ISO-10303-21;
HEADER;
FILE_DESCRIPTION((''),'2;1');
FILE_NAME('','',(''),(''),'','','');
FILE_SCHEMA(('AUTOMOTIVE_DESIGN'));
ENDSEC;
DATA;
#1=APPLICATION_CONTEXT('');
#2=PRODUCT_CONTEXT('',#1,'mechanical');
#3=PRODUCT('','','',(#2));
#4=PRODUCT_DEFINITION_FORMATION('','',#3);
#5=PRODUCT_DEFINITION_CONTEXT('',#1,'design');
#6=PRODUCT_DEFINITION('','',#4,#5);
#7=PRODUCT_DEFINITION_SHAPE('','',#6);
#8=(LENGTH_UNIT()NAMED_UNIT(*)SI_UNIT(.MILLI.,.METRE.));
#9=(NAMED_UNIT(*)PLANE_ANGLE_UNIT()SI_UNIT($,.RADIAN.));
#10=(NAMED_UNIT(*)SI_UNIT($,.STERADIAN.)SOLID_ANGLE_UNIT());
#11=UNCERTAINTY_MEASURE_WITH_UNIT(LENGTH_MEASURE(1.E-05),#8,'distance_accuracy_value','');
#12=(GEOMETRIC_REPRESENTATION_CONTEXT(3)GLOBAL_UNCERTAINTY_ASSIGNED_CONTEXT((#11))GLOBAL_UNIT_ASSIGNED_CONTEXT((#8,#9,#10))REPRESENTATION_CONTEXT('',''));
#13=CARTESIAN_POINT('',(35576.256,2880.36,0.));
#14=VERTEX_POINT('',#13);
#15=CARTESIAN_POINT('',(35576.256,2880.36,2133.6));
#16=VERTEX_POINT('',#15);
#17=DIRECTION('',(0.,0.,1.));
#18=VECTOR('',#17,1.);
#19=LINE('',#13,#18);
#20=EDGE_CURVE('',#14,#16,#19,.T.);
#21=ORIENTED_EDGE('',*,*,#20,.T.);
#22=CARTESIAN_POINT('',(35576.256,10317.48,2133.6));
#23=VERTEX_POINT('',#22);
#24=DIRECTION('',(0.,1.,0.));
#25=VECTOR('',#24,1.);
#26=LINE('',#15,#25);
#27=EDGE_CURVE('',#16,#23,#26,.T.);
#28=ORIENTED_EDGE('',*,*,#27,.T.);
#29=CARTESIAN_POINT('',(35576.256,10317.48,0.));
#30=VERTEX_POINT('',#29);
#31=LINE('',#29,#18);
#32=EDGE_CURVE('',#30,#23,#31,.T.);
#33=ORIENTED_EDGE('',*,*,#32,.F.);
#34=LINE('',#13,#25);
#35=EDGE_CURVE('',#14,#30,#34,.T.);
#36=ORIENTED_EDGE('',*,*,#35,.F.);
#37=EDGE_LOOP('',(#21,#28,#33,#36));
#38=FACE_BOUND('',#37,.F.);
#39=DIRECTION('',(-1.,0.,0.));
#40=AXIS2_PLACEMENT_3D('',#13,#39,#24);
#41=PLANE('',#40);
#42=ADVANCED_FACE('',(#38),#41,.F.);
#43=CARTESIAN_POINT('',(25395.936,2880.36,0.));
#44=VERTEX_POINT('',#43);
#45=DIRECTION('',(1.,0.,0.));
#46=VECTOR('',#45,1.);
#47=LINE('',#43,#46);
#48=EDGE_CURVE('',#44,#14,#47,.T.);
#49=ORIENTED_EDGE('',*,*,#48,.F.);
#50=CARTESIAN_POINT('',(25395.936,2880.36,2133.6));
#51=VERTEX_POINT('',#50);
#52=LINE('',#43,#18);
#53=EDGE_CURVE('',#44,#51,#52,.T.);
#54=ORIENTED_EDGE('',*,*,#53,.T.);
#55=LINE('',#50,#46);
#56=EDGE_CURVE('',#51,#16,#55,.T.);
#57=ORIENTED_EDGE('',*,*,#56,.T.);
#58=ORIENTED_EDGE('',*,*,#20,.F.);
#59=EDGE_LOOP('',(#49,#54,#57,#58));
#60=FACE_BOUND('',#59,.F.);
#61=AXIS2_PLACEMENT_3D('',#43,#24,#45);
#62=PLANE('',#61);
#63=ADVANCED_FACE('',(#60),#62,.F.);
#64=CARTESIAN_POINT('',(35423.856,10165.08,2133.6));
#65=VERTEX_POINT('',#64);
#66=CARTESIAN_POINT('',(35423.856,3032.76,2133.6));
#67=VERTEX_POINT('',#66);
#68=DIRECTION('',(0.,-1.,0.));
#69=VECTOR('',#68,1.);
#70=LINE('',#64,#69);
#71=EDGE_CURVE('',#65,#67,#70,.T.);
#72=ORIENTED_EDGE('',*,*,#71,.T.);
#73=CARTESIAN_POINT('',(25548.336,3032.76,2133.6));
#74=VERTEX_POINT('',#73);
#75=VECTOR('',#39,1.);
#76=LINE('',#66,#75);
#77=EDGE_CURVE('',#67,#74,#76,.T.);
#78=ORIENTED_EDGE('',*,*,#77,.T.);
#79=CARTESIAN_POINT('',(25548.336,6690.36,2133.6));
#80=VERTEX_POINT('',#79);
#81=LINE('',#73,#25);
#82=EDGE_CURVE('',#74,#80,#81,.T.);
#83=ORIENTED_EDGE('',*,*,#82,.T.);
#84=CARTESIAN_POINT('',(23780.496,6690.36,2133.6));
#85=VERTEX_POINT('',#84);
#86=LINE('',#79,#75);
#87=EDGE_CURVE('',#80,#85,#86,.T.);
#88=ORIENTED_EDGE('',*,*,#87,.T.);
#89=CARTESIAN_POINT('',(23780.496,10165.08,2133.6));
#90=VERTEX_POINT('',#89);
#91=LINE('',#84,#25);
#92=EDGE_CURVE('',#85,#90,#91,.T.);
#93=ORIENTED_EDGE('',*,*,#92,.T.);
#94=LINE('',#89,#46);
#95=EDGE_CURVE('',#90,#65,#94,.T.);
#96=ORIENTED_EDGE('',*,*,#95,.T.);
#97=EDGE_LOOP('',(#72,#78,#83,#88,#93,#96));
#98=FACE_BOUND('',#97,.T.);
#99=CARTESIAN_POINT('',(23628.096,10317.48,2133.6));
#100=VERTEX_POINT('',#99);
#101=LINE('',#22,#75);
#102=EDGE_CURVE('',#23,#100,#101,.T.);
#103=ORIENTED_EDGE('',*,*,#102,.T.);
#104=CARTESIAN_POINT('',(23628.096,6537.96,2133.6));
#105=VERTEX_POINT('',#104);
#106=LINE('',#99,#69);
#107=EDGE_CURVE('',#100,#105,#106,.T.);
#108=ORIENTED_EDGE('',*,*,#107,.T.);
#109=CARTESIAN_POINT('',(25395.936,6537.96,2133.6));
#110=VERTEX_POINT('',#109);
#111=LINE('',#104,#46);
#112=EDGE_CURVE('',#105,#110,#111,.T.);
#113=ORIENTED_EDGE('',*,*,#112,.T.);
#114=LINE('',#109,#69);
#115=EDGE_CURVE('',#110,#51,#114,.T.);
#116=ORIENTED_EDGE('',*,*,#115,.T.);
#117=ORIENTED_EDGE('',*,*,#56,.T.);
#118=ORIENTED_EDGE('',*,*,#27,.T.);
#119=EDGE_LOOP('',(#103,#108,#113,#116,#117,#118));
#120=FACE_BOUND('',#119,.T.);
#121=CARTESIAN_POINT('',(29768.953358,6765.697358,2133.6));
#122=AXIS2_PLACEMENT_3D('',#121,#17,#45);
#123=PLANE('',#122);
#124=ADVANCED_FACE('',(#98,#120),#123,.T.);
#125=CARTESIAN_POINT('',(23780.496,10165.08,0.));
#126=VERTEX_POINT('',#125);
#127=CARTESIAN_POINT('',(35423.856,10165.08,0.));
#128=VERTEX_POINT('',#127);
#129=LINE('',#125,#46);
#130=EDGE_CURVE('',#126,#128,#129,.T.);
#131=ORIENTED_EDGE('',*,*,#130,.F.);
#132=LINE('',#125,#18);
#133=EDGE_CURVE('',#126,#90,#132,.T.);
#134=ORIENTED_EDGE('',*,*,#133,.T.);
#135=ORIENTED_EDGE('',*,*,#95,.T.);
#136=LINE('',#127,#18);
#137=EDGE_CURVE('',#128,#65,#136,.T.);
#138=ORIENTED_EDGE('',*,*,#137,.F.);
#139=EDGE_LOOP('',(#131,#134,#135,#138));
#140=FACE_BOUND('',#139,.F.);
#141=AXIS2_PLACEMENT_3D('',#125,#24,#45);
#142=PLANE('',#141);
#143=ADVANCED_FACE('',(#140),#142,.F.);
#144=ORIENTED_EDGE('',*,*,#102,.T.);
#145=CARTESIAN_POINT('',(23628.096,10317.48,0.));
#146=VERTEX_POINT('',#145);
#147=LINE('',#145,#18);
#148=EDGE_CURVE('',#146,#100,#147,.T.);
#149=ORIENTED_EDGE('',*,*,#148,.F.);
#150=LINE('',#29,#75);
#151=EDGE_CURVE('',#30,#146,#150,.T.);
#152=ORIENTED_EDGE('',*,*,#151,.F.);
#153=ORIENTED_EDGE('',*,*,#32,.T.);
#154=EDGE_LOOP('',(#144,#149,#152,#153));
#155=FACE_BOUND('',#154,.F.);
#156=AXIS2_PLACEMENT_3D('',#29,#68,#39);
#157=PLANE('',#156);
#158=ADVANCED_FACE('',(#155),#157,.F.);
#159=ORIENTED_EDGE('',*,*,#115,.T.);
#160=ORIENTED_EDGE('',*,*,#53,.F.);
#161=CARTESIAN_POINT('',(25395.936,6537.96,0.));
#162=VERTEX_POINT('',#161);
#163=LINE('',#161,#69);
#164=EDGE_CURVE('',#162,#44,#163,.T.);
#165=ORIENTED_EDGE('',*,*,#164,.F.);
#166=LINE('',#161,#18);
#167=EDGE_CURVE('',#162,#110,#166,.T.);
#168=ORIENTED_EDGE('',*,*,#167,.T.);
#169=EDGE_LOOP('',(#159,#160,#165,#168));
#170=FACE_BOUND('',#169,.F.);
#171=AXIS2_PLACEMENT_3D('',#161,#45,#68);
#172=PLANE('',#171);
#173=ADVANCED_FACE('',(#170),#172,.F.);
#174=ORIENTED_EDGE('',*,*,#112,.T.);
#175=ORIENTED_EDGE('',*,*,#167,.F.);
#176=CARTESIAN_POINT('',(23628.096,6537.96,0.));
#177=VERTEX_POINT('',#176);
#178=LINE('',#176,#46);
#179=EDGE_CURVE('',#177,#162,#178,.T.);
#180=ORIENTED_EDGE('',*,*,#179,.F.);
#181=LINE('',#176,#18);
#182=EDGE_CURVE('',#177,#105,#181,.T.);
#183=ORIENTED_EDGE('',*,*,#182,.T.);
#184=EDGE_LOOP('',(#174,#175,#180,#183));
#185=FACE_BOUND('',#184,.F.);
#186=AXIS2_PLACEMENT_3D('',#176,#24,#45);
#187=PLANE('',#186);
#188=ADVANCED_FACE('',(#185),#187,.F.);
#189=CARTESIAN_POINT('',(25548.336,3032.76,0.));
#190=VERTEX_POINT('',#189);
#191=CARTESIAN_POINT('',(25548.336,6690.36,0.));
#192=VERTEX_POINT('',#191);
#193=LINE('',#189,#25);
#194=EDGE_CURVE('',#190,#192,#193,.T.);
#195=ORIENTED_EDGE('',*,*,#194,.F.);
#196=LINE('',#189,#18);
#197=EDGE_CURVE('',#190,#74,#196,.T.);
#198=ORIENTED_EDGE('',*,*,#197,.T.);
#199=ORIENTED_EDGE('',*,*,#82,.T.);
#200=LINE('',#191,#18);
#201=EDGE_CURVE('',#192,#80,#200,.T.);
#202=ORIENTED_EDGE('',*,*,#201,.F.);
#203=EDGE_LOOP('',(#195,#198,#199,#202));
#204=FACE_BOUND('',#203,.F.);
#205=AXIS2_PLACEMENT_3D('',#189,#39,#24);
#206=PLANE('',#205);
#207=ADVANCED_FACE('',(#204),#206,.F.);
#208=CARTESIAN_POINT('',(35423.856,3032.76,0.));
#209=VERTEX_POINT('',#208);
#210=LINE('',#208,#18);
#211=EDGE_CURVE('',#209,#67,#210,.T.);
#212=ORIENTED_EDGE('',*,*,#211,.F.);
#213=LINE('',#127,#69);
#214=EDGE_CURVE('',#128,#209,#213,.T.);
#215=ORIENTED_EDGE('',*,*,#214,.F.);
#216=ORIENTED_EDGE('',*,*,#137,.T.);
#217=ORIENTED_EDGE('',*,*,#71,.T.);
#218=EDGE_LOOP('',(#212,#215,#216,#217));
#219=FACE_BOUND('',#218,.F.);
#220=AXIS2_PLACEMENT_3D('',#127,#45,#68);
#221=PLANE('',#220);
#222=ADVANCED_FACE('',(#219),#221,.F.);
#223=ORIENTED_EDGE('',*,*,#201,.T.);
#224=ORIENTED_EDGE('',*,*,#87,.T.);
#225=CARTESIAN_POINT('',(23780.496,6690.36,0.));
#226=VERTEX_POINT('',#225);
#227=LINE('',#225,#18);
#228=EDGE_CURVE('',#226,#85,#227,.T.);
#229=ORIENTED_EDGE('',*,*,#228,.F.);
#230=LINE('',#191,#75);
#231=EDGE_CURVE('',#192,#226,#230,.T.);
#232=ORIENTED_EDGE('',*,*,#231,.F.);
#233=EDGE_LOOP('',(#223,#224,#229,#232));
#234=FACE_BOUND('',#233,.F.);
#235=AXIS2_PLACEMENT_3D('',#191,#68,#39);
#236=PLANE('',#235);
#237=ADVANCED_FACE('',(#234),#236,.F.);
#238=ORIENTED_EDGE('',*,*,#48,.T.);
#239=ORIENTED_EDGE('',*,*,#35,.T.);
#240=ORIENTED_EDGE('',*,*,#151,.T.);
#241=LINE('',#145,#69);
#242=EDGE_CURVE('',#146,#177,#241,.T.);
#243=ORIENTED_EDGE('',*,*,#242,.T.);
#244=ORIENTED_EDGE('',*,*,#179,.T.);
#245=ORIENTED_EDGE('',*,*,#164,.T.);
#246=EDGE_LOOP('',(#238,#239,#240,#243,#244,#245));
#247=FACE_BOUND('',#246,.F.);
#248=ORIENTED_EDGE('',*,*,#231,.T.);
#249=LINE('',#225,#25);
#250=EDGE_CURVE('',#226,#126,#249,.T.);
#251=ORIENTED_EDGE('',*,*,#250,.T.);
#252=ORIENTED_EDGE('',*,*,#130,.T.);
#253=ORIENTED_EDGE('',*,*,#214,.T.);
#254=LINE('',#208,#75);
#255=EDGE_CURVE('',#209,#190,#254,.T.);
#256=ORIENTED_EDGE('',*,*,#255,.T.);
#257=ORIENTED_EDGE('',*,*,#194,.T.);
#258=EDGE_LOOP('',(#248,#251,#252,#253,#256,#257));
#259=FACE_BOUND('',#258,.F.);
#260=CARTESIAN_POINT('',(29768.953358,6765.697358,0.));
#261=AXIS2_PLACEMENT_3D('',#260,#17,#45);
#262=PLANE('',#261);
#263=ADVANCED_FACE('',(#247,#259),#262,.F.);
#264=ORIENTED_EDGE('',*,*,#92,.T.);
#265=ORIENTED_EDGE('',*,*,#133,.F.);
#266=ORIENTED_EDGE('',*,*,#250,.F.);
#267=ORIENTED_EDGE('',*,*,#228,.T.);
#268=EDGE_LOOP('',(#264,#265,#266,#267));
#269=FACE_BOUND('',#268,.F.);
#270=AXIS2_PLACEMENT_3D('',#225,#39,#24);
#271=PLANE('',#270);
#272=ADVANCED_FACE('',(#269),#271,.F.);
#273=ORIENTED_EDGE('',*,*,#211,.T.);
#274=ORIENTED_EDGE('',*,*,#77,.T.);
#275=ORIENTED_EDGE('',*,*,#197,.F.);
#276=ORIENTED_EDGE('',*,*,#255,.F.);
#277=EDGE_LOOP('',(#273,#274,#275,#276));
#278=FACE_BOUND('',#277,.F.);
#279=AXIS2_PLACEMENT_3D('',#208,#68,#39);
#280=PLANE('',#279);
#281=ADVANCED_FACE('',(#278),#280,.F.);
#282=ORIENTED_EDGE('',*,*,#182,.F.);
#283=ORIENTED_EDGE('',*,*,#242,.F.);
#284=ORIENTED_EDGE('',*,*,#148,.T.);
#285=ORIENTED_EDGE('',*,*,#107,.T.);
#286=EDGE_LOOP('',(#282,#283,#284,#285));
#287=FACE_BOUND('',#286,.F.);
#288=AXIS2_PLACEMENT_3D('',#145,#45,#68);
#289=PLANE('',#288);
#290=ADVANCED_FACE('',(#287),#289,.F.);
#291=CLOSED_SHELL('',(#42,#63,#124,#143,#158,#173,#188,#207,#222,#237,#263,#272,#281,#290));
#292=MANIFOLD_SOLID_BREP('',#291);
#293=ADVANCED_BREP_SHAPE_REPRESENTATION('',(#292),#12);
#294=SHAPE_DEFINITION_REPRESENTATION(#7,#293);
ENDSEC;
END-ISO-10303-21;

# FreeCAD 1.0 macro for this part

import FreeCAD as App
import Part
import Sketcher
from FreeCAD import Vector
Q = App.Units.Quantity

doc = App.newDocument("Part")
body = doc.addObject("PartDesign::Body", "Body")

# Sketch on XY plane
sketch1 = body.newObject("Sketcher::SketchObject", "Sketch")
sketch1.AttachmentSupport = (doc.getObject("XY_Plane"), [""])
sketch1.MapMode = "FlatFace"
sketch1.addGeometry(Part.LineSegment(Vector(35576, 2880, 0), Vector(35576, 10317, 0)), False)
sketch1.addGeometry(Part.LineSegment(Vector(35576, 10317, 0), Vector(23628, 10317, 0)), False)
sketch1.addGeometry(Part.LineSegment(Vector(23628, 10317, 0), Vector(23628, 6538, 0)), False)
sketch1.addGeometry(Part.LineSegment(Vector(23628, 6538, 0), Vector(25396, 6538, 0)), False)
sketch1.addGeometry(Part.LineSegment(Vector(25396, 6538, 0), Vector(25396, 2880, 0)), False)
sketch1.addGeometry(Part.LineSegment(Vector(25396, 2880, 0), Vector(35576, 2880, 0)), False)
sketch1.addGeometry(Part.LineSegment(Vector(35424, 3033, 0), Vector(25548, 3033, 0)), False)
sketch1.addGeometry(Part.LineSegment(Vector(25548, 3033, 0), Vector(25548, 6690, 0)), False)
sketch1.addGeometry(Part.LineSegment(Vector(25548, 6690, 0), Vector(23780, 6690, 0)), False)
sketch1.addGeometry(Part.LineSegment(Vector(23780, 6690, 0), Vector(23780, 10165, 0)), False)
sketch1.addGeometry(Part.LineSegment(Vector(23780, 10165, 0), Vector(35424, 10165, 0)), False)
sketch1.addGeometry(Part.LineSegment(Vector(35424, 10165, 0), Vector(35424, 3033, 0)), False)
sketch1.addConstraint(Sketcher.Constraint("Coincident", 0, 2, 1, 1))
sketch1.addConstraint(Sketcher.Constraint("Coincident", 1, 2, 2, 1))
sketch1.addConstraint(Sketcher.Constraint("Coincident", 2, 2, 3, 1))
sketch1.addConstraint(Sketcher.Constraint("Coincident", 3, 2, 4, 1))
sketch1.addConstraint(Sketcher.Constraint("Coincident", 4, 2, 5, 1))
sketch1.addConstraint(Sketcher.Constraint("Coincident", 5, 2, 0, 1))
sketch1.addConstraint(Sketcher.Constraint("Coincident", 6, 2, 7, 1))
sketch1.addConstraint(Sketcher.Constraint("Coincident", 7, 2, 8, 1))
sketch1.addConstraint(Sketcher.Constraint("Coincident", 8, 2, 9, 1))
sketch1.addConstraint(Sketcher.Constraint("Coincident", 9, 2, 10, 1))
sketch1.addConstraint(Sketcher.Constraint("Coincident", 10, 2, 11, 1))
sketch1.addConstraint(Sketcher.Constraint("Coincident", 11, 2, 6, 1))
sketch1.addConstraint(Sketcher.Constraint("Vertical", 0))
sketch1.addConstraint(Sketcher.Constraint("Horizontal", 1))
sketch1.addConstraint(Sketcher.Constraint("Vertical", 2))
sketch1.addConstraint(Sketcher.Constraint("Horizontal", 3))
sketch1.addConstraint(Sketcher.Constraint("Vertical", 4))
sketch1.addConstraint(Sketcher.Constraint("Horizontal", 5))
sketch1.addConstraint(Sketcher.Constraint("Horizontal", 6))
sketch1.addConstraint(Sketcher.Constraint("Vertical", 7))
sketch1.addConstraint(Sketcher.Constraint("Horizontal", 8))
sketch1.addConstraint(Sketcher.Constraint("Vertical", 9))
sketch1.addConstraint(Sketcher.Constraint("Horizontal", 10))
sketch1.addConstraint(Sketcher.Constraint("Vertical", 11))
sketch1.addConstraint(Sketcher.Constraint("Equal", 3, 8))
sketch1.addConstraint(Sketcher.Constraint("Equal", 4, 7))
sketch1.addConstraint(Sketcher.Constraint("DistanceY", 4, 2, 4, 1, Q("144 in")))
sketch1.addConstraint(Sketcher.Constraint("DistanceX", 1, 2, 1, 1, Q("470.4 in")))
sketch1.addConstraint(Sketcher.Constraint("DistanceX", 3, 1, 3, 2, Q("69.6 in")))
sketch1.addConstraint(Sketcher.Constraint("DistanceX", 6, 2, 6, 1, Q("388.8 in")))
sketch1.addConstraint(Sketcher.Constraint("DistanceY", 0, 1, 0, 2, Q("292.8 in")))
sketch1.addConstraint(Sketcher.Constraint("DistanceY", 9, 1, 9, 2, Q("136.8 in")))
sketch1.addConstraint(Sketcher.Constraint("DistanceX", 4, 2, 6, 2, Q("6 in")))
sketch1.addConstraint(Sketcher.Constraint("DistanceY", 4, 2, 6, 2, Q("6 in")))
sketch1.addConstraint(Sketcher.Constraint("DistanceY", -1, 1, 0, 2, Q("406.2 in")))
sketch1.addConstraint(Sketcher.Constraint("DistanceX", -1, 1, 0, 2, Q("1400.64 in")))
pad1 = body.newObject("PartDesign::Pad", "Pad")
pad1.Profile = sketch1
pad1.Length = Q("84 in")

doc.recompute()
